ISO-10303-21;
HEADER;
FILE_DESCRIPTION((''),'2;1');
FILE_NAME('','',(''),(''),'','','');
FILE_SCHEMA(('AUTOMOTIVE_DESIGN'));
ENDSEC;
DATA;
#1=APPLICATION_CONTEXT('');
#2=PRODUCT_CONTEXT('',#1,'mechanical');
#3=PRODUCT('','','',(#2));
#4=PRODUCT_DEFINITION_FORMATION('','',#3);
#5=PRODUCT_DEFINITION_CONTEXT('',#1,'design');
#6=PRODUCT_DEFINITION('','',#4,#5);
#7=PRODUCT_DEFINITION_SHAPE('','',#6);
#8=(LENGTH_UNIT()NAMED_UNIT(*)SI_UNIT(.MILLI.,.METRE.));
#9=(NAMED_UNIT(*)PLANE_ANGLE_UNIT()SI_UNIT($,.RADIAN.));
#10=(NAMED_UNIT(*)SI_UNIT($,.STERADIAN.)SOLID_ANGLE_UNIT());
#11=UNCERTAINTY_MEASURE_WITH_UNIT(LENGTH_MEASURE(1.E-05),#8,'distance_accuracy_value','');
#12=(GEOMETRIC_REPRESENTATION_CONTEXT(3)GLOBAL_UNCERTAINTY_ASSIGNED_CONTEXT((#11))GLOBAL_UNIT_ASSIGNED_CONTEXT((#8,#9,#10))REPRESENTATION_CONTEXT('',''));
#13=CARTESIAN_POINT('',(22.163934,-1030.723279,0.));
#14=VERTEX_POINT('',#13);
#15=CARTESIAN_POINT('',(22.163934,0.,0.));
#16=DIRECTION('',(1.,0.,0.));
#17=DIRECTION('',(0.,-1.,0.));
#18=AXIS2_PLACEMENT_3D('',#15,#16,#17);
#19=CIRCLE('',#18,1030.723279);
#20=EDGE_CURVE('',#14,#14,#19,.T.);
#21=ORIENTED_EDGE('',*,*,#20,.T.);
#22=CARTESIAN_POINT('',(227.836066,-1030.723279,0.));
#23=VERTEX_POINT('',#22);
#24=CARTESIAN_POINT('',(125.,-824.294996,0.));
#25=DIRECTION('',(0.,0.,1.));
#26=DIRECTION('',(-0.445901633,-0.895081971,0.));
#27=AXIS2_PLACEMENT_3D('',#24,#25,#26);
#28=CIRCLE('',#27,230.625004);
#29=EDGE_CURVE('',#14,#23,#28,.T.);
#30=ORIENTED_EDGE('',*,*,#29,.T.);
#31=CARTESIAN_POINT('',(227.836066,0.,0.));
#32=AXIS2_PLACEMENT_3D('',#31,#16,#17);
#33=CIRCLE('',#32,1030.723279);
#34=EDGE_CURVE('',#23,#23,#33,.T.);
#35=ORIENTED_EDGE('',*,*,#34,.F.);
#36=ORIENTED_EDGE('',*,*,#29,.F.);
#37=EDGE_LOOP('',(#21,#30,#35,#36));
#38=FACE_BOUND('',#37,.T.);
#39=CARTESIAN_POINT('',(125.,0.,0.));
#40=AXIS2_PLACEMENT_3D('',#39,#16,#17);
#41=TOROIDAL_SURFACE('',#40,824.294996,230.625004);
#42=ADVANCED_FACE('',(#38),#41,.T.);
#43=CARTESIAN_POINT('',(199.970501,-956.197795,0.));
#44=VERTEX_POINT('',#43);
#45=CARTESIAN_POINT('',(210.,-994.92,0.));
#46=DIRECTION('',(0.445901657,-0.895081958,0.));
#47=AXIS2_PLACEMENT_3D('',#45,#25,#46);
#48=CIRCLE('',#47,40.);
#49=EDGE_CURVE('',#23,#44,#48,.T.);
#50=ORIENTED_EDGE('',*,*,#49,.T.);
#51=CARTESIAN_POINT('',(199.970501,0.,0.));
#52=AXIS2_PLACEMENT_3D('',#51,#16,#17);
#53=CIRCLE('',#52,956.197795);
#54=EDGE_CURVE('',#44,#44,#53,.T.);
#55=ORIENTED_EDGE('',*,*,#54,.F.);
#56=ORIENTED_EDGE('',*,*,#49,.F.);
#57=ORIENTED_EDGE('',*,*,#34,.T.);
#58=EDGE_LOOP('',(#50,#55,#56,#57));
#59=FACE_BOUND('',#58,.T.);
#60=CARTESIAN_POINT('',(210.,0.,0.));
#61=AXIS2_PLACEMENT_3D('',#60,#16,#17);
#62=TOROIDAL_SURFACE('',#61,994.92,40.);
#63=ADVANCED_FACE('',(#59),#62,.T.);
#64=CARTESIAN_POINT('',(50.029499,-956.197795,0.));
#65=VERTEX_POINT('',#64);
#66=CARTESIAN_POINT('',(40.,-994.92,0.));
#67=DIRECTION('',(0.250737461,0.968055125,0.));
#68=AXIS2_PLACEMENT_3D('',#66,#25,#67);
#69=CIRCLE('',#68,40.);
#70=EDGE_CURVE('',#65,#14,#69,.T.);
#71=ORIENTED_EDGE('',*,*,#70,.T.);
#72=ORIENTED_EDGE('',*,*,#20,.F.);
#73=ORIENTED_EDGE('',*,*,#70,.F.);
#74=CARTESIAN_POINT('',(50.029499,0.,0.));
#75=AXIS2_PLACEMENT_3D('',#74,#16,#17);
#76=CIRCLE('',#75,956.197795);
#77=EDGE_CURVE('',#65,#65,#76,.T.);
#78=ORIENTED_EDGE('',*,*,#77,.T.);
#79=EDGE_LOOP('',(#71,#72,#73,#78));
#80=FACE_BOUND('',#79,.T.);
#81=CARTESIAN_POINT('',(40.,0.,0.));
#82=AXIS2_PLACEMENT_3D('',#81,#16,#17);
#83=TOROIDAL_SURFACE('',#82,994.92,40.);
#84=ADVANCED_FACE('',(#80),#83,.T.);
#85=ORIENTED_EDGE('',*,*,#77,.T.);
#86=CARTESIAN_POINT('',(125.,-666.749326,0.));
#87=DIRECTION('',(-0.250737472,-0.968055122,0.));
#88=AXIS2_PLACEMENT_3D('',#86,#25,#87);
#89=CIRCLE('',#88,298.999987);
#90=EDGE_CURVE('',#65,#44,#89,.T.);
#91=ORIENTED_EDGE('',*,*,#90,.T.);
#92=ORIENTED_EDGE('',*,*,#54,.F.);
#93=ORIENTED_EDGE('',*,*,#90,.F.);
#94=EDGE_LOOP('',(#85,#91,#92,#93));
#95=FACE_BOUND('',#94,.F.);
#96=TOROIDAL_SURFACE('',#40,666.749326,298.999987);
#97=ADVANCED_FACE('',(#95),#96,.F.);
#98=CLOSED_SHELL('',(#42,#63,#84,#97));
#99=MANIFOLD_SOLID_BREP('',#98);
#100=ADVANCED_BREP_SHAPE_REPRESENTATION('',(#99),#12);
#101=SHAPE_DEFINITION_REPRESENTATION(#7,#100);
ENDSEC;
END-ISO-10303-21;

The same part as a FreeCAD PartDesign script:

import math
import FreeCAD as App
import Part
import Sketcher

doc = App.newDocument("Part")
params = doc.addObject("Spreadsheet::Sheet", "Params")
for row, (alias, value) in enumerate([
    ("sketch1_radius", "40 mm"),
    ("revolution_angle", "360 deg"),
], start=1):
    params.set(f"A{row}", alias)
    params.set(f"B{row}", "=" + value)
    params.setAlias(f"B{row}", alias)

body = doc.addObject("PartDesign::Body", "Body")

sketch1 = body.newObject("Sketcher::SketchObject", "Sketch")
sketch1.AttachmentSupport = (doc.getObject("XY_Plane"), [""])
sketch1.MapMode = "FlatFace"
sketch1.addGeometry([
    Part.ArcOfCircle(Part.Circle(App.Vector(40, -995, 0), App.Vector(0, 0, 1), 40), math.radians(75), math.radians(244)),
    Part.ArcOfCircle(Part.Circle(App.Vector(125, -824, 0), App.Vector(0, 0, 1), 231), math.radians(-116), math.radians(-64)),
    Part.ArcOfCircle(Part.Circle(App.Vector(210, -995, 0), App.Vector(0, 0, 1), 40), math.radians(-64), math.radians(105)),
    Part.ArcOfCircle(Part.Circle(App.Vector(125, -667, 0), App.Vector(0, 0, 1), 299), math.radians(-105), math.radians(-75)),
], False)
sketch1.addConstraint([
    Sketcher.Constraint("Tangent", 0, 2, 1, 1),
    Sketcher.Constraint("Tangent", 1, 2, 2, 1),
    Sketcher.Constraint("Tangent", 2, 2, 3, 2),
    Sketcher.Constraint("Tangent", 3, 1, 0, 1),
    Sketcher.Constraint("Equal", 0, 2),
    Sketcher.Constraint("Horizontal", 0, 3, 2, 3),
    Sketcher.Constraint("Radius", 0, 40.0),
    Sketcher.Constraint("DistanceX", -1, 1, 0, 3, 40.0),
    Sketcher.Constraint("DistanceX", -1, 1, 1, 3, 125.0),
    Sketcher.Constraint("DistanceY", 0, 3, -1, 1, 994.92),
    Sketcher.Constraint("Radius", 1, 230.625004),
    Sketcher.Constraint("Radius", 3, 298.999987),
])
sketch1.setExpression("Constraints[6]", "Params.sketch1_radius")
revolution = body.newObject("PartDesign::Revolution", "Revolution")
revolution.Profile = sketch1
revolution.ReferenceAxis = (sketch1, ["H_Axis"])
revolution.setExpression("Angle", "Params.revolution_angle")

doc.recompute()
